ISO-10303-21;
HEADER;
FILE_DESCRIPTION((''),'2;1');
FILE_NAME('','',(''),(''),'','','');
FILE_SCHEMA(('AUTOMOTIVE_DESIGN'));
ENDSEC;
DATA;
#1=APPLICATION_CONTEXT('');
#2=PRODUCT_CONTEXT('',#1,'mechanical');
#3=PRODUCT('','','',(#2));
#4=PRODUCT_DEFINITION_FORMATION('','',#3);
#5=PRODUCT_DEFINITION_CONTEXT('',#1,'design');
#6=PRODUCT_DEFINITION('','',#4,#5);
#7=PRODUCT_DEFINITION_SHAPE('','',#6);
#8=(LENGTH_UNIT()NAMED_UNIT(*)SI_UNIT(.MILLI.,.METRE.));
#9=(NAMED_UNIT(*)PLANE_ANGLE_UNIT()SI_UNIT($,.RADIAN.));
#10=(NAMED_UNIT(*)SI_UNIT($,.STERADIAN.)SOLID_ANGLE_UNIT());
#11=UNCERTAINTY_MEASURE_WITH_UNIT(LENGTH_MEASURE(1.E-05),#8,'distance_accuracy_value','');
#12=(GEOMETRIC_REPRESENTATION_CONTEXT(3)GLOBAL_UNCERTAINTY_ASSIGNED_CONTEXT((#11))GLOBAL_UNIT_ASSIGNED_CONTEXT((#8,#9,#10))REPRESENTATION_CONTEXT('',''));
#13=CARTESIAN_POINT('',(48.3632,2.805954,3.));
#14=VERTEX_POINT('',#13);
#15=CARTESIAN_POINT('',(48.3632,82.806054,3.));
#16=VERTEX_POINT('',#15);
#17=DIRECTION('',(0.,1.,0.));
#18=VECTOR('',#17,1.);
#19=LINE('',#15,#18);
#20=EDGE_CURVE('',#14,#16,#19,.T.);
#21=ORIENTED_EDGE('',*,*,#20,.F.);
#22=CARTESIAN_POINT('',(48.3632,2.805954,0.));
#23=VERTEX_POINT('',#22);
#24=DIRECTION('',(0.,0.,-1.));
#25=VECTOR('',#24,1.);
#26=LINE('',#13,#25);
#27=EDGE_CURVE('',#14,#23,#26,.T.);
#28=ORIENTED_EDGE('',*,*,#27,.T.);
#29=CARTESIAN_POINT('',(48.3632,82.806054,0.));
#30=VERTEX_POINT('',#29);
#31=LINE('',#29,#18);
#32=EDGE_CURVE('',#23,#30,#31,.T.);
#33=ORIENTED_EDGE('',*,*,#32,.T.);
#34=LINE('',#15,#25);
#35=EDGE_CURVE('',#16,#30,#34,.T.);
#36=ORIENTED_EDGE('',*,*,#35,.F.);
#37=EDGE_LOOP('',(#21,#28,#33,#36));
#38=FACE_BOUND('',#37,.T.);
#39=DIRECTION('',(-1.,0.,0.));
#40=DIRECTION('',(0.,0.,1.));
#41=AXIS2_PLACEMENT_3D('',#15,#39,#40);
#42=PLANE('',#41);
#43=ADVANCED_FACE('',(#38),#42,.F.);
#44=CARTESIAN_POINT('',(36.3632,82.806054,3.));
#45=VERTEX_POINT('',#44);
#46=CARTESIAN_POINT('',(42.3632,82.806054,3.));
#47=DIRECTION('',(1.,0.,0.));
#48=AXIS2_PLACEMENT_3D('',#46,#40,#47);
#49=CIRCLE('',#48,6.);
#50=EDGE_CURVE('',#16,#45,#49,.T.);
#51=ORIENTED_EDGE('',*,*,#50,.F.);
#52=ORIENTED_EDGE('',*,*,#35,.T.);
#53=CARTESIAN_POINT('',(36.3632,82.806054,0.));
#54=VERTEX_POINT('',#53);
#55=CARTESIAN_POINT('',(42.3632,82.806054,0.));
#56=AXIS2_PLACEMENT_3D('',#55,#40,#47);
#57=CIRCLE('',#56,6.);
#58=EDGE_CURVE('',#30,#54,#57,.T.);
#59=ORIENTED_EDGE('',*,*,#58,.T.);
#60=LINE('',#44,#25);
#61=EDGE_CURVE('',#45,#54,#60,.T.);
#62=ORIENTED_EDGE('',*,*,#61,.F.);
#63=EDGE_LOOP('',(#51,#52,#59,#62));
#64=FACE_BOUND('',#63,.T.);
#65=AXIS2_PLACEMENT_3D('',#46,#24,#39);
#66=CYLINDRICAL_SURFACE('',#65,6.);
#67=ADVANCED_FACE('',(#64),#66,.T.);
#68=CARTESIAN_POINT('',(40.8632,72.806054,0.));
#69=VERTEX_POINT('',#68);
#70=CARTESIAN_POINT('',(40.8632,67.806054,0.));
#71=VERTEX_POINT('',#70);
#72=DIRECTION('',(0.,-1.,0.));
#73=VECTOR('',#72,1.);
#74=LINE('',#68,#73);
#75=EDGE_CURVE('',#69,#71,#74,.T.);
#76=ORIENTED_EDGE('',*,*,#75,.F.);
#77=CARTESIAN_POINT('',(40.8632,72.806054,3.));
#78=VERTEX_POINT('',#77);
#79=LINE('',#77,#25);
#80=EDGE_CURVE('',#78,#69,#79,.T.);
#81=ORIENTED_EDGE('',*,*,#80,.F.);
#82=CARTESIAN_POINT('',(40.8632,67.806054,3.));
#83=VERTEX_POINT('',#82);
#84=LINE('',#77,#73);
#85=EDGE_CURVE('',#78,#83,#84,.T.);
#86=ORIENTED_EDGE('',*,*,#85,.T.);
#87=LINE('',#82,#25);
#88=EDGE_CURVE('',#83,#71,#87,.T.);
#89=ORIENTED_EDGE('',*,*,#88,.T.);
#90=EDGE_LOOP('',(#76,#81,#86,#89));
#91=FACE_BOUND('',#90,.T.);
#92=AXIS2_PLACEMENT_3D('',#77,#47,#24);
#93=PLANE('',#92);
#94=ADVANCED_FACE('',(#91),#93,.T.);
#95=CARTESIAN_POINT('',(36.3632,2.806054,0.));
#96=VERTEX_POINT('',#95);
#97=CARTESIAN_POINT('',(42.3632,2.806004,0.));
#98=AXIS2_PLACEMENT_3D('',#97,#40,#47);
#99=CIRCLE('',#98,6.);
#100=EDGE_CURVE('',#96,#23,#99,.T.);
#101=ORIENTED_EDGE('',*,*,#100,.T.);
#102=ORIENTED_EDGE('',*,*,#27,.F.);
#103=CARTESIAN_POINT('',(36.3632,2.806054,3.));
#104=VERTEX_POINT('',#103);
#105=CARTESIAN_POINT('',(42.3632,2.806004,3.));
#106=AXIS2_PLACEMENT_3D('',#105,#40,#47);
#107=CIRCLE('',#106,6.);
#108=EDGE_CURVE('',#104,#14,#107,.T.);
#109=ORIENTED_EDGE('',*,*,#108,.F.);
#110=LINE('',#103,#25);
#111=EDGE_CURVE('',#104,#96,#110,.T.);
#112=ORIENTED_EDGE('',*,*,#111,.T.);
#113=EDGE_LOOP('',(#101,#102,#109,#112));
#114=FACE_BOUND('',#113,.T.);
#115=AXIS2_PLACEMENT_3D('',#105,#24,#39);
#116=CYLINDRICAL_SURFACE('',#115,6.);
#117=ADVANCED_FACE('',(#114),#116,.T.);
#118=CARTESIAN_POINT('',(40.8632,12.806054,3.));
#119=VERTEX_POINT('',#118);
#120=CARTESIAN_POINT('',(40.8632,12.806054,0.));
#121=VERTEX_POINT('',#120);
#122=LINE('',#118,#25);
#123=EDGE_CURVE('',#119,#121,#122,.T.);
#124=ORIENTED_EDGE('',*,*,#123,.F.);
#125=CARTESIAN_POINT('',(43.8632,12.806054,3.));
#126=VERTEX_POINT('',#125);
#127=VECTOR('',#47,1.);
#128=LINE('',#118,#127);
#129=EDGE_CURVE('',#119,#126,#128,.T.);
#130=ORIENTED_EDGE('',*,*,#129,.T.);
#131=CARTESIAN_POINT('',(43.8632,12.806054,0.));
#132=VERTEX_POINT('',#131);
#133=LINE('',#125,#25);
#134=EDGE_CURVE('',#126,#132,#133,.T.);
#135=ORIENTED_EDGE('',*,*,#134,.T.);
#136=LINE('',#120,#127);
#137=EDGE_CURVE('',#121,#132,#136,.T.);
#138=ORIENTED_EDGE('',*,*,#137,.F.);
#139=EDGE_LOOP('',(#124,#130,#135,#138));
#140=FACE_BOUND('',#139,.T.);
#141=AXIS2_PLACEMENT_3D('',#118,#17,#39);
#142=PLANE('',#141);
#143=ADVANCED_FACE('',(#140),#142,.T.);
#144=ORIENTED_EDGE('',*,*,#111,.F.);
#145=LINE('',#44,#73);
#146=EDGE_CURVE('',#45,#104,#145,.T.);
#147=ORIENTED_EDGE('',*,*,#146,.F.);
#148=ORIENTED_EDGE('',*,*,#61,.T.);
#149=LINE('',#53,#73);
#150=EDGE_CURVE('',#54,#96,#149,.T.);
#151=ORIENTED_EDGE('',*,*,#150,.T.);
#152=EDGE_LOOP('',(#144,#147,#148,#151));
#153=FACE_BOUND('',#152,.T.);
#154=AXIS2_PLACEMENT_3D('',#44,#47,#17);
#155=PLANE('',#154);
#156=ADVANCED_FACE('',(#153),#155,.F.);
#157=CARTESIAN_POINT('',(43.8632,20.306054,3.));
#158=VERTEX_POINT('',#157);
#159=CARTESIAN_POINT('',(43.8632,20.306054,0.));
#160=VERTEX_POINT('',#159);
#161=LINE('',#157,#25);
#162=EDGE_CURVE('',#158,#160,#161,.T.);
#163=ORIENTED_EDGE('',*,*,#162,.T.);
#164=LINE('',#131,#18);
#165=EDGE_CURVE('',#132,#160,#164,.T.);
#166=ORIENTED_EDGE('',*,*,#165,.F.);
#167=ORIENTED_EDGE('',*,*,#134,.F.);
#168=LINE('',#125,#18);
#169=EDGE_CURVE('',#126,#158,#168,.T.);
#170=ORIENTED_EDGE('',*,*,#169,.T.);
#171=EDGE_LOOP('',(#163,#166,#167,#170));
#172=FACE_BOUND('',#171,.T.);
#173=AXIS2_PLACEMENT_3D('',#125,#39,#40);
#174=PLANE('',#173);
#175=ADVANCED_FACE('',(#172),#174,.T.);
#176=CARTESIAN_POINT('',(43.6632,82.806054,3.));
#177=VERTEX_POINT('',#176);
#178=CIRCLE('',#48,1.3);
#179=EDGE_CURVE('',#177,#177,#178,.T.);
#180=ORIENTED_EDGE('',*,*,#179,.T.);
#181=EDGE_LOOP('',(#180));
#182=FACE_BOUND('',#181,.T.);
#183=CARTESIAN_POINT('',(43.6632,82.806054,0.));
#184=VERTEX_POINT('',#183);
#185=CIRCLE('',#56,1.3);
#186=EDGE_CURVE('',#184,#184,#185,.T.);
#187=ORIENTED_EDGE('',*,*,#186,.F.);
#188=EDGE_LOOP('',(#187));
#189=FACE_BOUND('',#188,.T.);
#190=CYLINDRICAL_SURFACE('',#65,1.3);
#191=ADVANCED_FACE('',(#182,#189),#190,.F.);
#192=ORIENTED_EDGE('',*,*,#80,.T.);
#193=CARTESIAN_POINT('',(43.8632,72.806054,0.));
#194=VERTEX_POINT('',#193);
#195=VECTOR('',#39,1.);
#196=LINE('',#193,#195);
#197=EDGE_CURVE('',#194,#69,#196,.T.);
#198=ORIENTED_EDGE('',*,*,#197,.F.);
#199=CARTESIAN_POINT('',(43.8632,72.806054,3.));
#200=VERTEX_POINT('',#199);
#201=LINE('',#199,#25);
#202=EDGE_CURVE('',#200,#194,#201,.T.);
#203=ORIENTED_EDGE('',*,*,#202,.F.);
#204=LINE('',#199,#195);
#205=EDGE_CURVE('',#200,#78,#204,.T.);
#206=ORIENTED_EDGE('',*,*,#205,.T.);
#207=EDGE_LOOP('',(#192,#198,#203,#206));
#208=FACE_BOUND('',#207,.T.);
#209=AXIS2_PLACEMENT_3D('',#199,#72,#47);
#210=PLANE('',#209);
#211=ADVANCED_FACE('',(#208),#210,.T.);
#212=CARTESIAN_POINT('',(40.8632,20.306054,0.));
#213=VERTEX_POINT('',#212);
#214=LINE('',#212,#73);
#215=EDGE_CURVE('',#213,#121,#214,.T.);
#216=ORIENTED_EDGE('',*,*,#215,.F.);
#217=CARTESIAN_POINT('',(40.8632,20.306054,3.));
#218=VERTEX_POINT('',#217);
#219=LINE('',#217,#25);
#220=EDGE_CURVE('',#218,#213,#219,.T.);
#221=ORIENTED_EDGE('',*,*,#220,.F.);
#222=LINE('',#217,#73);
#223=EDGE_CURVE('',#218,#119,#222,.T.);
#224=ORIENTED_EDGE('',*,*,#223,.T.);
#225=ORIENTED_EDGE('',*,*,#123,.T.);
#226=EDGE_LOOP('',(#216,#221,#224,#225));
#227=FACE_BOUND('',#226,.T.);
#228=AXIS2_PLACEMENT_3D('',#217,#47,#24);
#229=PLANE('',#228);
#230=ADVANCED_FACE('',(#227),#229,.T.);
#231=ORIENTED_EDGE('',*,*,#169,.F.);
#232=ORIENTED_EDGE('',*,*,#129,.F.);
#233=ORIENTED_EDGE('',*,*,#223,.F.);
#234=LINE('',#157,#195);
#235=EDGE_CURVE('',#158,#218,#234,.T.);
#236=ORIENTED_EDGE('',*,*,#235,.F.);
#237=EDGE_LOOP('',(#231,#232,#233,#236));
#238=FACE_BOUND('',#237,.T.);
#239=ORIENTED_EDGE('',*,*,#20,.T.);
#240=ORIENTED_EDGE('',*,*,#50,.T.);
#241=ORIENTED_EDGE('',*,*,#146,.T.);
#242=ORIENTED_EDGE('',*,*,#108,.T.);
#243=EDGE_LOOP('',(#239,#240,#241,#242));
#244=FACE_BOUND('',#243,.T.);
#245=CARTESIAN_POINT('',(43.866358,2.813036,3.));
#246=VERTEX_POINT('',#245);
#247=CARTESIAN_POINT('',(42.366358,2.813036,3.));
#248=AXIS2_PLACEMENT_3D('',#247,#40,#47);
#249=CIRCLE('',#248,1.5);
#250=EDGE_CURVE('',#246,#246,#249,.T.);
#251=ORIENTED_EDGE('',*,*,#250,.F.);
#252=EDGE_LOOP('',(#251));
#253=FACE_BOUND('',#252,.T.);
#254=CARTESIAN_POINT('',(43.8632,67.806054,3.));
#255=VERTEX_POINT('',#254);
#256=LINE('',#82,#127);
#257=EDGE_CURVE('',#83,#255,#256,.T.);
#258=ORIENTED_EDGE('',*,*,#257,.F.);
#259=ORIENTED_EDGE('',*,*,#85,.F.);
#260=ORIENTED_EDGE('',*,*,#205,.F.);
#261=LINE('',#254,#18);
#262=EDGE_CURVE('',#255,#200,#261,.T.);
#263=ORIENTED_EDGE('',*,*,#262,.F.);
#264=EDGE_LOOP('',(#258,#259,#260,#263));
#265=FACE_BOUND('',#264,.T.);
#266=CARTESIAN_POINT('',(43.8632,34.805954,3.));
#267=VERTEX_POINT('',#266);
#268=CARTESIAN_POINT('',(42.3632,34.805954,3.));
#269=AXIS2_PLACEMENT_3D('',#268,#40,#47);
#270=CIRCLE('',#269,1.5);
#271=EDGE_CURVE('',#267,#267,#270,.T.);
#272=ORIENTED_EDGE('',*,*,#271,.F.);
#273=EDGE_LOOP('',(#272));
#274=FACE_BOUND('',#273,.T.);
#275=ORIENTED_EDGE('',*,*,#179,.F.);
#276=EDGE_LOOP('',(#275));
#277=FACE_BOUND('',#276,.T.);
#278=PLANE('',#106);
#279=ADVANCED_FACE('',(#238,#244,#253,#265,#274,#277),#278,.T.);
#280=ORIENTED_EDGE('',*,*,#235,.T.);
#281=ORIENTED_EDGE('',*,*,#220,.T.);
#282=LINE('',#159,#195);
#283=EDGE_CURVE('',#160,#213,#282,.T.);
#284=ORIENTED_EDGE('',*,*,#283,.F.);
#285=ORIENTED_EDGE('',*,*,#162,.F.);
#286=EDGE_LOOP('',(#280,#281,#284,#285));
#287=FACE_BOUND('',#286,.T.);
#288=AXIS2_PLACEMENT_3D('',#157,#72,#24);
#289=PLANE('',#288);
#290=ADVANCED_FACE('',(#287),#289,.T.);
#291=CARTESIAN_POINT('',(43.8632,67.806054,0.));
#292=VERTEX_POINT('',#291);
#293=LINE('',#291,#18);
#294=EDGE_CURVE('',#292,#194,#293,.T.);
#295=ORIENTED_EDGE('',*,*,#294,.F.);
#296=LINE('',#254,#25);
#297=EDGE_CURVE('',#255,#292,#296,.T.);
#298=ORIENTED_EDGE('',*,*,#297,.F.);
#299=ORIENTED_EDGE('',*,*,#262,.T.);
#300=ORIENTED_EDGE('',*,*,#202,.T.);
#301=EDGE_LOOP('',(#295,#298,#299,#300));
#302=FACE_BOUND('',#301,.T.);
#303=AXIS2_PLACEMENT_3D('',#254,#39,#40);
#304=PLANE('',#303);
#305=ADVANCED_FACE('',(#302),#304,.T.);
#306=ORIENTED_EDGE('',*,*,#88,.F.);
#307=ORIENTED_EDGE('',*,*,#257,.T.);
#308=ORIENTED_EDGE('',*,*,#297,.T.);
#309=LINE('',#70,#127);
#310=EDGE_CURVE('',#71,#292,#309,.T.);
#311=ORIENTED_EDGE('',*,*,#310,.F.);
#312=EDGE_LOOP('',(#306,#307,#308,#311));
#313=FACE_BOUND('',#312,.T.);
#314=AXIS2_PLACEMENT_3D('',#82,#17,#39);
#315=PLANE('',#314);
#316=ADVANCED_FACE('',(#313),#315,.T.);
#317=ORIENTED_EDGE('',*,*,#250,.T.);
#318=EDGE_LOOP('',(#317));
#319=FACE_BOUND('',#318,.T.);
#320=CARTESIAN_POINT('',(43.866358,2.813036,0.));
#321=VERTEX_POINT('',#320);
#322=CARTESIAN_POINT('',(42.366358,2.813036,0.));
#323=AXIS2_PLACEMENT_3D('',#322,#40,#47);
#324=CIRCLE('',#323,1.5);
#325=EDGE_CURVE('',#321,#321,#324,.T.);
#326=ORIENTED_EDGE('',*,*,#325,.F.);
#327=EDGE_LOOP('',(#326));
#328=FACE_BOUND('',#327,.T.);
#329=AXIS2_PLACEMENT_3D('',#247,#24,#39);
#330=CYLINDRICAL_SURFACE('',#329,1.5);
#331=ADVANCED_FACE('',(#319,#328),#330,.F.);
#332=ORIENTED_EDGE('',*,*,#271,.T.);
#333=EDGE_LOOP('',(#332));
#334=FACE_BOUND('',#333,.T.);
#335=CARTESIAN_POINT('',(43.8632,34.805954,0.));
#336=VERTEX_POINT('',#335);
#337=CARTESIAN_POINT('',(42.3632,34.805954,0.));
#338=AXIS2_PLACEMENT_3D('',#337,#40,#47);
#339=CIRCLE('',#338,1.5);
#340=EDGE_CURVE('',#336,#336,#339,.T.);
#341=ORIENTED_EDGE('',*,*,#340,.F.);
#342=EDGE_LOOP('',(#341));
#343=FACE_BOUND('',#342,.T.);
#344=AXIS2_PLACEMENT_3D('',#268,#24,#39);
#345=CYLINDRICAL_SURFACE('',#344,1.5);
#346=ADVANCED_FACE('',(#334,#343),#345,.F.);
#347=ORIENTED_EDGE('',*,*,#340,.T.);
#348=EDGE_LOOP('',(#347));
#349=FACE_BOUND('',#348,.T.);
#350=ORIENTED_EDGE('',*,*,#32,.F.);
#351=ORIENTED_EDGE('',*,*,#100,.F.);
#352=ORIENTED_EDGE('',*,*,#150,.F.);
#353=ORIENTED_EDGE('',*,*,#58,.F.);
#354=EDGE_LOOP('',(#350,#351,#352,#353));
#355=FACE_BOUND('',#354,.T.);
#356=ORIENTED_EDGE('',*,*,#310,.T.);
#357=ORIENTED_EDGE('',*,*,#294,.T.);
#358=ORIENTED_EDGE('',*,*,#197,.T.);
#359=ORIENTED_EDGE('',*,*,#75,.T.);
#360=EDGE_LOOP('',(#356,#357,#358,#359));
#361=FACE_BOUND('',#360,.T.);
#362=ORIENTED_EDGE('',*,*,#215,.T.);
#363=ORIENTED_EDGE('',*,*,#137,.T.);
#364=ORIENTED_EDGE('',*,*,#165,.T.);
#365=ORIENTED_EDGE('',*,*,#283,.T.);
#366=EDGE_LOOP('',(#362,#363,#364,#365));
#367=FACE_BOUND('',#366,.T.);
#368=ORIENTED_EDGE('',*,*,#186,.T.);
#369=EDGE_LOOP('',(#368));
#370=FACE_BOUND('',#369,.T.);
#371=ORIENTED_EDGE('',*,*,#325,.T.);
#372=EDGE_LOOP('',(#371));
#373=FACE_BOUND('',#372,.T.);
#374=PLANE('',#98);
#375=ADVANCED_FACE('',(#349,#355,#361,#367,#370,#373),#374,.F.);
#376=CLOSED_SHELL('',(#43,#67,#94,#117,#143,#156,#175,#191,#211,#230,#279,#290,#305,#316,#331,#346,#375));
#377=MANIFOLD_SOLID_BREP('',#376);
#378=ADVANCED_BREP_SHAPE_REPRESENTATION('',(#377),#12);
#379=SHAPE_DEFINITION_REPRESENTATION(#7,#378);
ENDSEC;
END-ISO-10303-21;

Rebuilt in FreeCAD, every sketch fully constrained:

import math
import FreeCAD as App
import Part
import Sketcher
Q = App.Units.Quantity


def add_polygon(sketch, points):
    """Adds a closed chain of lines whose ends are joined by coincident constraints."""
    first, n = sketch.GeometryCount, len(points)
    for a, b in zip(points, points[1:] + points[:1]):
        sketch.addGeometry(Part.LineSegment(App.Vector(*a, 0), App.Vector(*b, 0)), False)
    for i in range(n):
        sketch.addConstraint(Sketcher.Constraint("Coincident", first + i, 2, first + (i + 1) % n, 1))

doc = App.newDocument("Part")
body = doc.addObject("PartDesign::Body", "Body")

# Sketch on XY plane
sketch1 = body.newObject("Sketcher::SketchObject", "Sketch")
sketch1.AttachmentSupport = (doc.getObject("XY_Plane"), [""])
sketch1.MapMode = "FlatFace"
sketch1.addGeometry(Part.LineSegment(App.Vector(36.4, 82.8, 0), App.Vector(36.4, 2.8, 0)), False)  # 0
sketch1.addGeometry(Part.ArcOfCircle(Part.Circle(App.Vector(42.4, 2.8, 0), App.Vector(0, 0, 1), 6), math.radians(180), math.radians(360)), False)  # 1
sketch1.addGeometry(Part.LineSegment(App.Vector(48.4, 2.8, 0), App.Vector(48.4, 82.8, 0)), False)  # 2
sketch1.addGeometry(Part.ArcOfCircle(Part.Circle(App.Vector(42.4, 82.8, 0), App.Vector(0, 0, 1), 6), math.radians(0), math.radians(180)), False)  # 3
add_polygon(sketch1, [(43.9, 12.8), (40.9, 12.8), (40.9, 20.3), (43.9, 20.3)])  # lines 4-7
sketch1.addGeometry(Part.Circle(App.Vector(42.4, 34.8, 0), App.Vector(0, 0, 1), 1.5), False)  # 8
sketch1.addGeometry(Part.Circle(App.Vector(42.4, 2.8, 0), App.Vector(0, 0, 1), 1.5), False)  # 9
add_polygon(sketch1, [(43.9, 67.8), (40.9, 67.8), (40.9, 72.8), (43.9, 72.8)])  # lines 10-13
sketch1.addGeometry(Part.Circle(App.Vector(42.4, 82.8, 0), App.Vector(0, 0, 1), 1.3), False)  # 14
sketch1.addConstraint([
    Sketcher.Constraint("Coincident", 0, 2, 1, 1),
    Sketcher.Constraint("Coincident", 1, 2, 2, 1),
    Sketcher.Constraint("Tangent", 2, 2, 3, 1),
    Sketcher.Constraint("Tangent", 3, 2, 0, 1),
    Sketcher.Constraint("Vertical", 0),
    Sketcher.Constraint("Vertical", 2),
    Sketcher.Constraint("Horizontal", 4),
    Sketcher.Constraint("Vertical", 5),
    Sketcher.Constraint("Horizontal", 6),
    Sketcher.Constraint("Vertical", 7),
    Sketcher.Constraint("Horizontal", 10),
    Sketcher.Constraint("Vertical", 11),
    Sketcher.Constraint("Horizontal", 12),
    Sketcher.Constraint("Vertical", 13),
    Sketcher.Constraint("Coincident", 14, 3, 3, 3),
    Sketcher.Constraint("Equal", 8, 9),
    Sketcher.Constraint("Vertical", 3, 3, 8, 3),
    Sketcher.Constraint("Vertical", 5, 2, 10, 2),
    Sketcher.Constraint("Vertical", 7, 2, 12, 2),
    Sketcher.Constraint("Diameter", 8, Q("3 mm")),
    Sketcher.Constraint("Radius", 1, Q("6 mm")),
    Sketcher.Constraint("Diameter", 14, Q("2.6 mm")),
    Sketcher.Constraint("DistanceX", 4, 2, 4, 1, Q("3 mm")),
    Sketcher.Constraint("DistanceY", 0, 2, 0, 1, Q("80 mm")),
    Sketcher.Constraint("DistanceY", 11, 1, 11, 2, Q("5 mm")),
    Sketcher.Constraint("DistanceY", 5, 1, 5, 2, Q("7.5 mm")),
    Sketcher.Constraint("DistanceY", 1, 2, 8, 3, Q("32 mm")),
    Sketcher.Constraint("DistanceY", 0, 2, 4, 2, Q("10 mm")),
    Sketcher.Constraint("DistanceY", 10, 2, 3, 3, Q("15 mm")),
    Sketcher.Constraint("DistanceX", 4, 2, 1, 3, Q("1.5 mm")),
    Sketcher.Constraint("DistanceY", 2, 1, 2, 2, Q("80.0001 mm")),
    Sketcher.Constraint("DistanceX", -1, 1, 1, 3, Q("42.3632 mm")),
    Sketcher.Constraint("DistanceX", -1, 1, 9, 3, Q("42.366358 mm")),
    Sketcher.Constraint("DistanceY", 1, 3, 3, 3, Q("80.00005 mm")),
    Sketcher.Constraint("DistanceY", 1, 3, 9, 3, Q("0.007032 mm")),
    Sketcher.Constraint("DistanceY", -1, 1, 1, 3, Q("2.806004 mm")),
])
pad1 = body.newObject("PartDesign::Pad", "Pad")
pad1.Profile = sketch1
pad1.Length = 3

doc.recompute()
